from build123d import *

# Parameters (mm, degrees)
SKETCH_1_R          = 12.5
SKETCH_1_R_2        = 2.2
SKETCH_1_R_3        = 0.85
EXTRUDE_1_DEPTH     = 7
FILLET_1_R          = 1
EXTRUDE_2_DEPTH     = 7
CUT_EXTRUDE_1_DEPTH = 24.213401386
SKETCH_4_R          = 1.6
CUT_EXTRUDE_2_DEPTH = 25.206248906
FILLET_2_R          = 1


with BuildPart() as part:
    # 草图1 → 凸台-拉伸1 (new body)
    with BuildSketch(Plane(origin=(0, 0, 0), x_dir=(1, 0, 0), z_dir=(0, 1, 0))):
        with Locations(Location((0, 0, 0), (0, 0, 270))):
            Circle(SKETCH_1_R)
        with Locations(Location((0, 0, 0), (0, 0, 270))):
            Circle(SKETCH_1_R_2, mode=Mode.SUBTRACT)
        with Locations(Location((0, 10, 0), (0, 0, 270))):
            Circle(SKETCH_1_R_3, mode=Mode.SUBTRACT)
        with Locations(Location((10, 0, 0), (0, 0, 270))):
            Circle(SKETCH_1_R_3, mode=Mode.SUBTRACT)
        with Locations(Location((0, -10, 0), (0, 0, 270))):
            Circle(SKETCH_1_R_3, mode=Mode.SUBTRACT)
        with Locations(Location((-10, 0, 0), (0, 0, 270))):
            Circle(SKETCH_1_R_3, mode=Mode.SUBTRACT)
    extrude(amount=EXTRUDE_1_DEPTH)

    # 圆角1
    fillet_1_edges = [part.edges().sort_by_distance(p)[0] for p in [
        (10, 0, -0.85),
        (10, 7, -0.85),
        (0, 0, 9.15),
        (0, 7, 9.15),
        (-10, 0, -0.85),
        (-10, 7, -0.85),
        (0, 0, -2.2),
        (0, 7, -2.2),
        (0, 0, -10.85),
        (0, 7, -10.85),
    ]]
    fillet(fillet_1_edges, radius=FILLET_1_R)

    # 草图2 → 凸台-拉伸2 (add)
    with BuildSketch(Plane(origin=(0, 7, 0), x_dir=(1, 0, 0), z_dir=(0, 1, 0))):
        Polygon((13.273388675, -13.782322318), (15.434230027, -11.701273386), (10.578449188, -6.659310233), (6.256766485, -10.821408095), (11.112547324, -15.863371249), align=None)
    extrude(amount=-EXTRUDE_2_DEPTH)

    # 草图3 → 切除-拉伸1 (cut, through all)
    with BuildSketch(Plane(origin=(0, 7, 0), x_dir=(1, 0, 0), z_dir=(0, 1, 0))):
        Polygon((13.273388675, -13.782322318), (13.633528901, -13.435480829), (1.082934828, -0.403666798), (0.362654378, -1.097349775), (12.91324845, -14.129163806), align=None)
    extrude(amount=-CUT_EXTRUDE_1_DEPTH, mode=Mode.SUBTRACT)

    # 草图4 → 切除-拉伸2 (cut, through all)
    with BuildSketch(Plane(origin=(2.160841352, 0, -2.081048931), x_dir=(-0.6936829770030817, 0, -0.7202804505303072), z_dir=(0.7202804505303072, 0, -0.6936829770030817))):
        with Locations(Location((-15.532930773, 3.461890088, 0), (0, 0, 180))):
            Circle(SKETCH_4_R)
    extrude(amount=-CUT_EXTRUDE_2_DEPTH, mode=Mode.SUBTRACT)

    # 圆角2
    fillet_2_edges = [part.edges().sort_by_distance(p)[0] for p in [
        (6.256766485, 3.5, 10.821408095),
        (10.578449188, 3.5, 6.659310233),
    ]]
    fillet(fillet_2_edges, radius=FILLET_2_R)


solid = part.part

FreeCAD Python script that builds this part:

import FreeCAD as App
import Part
import Sketcher
from FreeCAD import Vector
Q = App.Units.Quantity


def edges_at(feature, points):
    """Names of the edges that pass closest to the given points."""
    edges = feature.Shape.Edges
    near = lambda p: min(range(len(edges)), key=lambda i: edges[i].distToShape(Part.Vertex(*p))[0])
    return sorted({f"Edge{near(p) + 1}" for p in points})

doc = App.newDocument("Part")
params = doc.addObject("Spreadsheet::Sheet", "Params")
for row, (alias, value) in enumerate([
    ("sketch1_diameter", "25 mm"),
    ("sketch1_diameter2", "1.7 mm"),
    ("sketch1_diameter3", "4.4 mm"),
    ("pad1_length", "7 mm"),
    ("fillet_radius", "1 mm"),
    ("sketch2_length", "3 mm"),
    ("sketch2_length2", "7 mm"),
    ("pad2_length", "7 mm"),
    ("sketch3_length", "1 mm"),
    ("sketch3_length2", "0.5 mm"),
    ("sketch3_length3", "0.5 mm"),
    ("sketch4_diameter", "3.2 mm"),
    ("fillet2_radius", "1 mm"),
], start=1):
    params.set(f"A{row}", alias)
    params.set(f"B{row}", "=" + value)
    params.setAlias(f"B{row}", alias)

body = doc.addObject("PartDesign::Body", "Body")

# Sketch on XZ plane
sketch1 = body.newObject("Sketcher::SketchObject", "Sketch")
sketch1.AttachmentSupport = (doc.getObject("XZ_Plane"), [""])
sketch1.MapMode = "FlatFace"
sketch1.addGeometry([
    Part.Circle(Vector(0, 0, 0), Vector(0, 0, 1), 12.5),  # 0
    Part.Circle(Vector(0, -10, 0), Vector(0, 0, 1), 0.8),  # 1
    Part.Circle(Vector(-10, 0, 0), Vector(0, 0, 1), 0.8),  # 2
    Part.Circle(Vector(0, 0, 0), Vector(0, 0, 1), 2.2),  # 3
    Part.Circle(Vector(10, 0, 0), Vector(0, 0, 1), 0.8),  # 4
    Part.Circle(Vector(0, 10, 0), Vector(0, 0, 1), 0.8),  # 5
], False)
sketch1.addConstraint([
    Sketcher.Constraint("Coincident", 0, 3, -1, 1),
    Sketcher.Constraint("Coincident", 3, 3, -1, 1),
    Sketcher.Constraint("Equal", 1, 2),
    Sketcher.Constraint("Equal", 2, 4),
    Sketcher.Constraint("Equal", 4, 5),
    Sketcher.Constraint("Symmetric", 2, 3, 4, 3, -1, 1),
    Sketcher.Constraint("Symmetric", 1, 3, 5, 3, -1, 1),
    Sketcher.Constraint("PointOnObject", 1, 3, -2),
    Sketcher.Constraint("PointOnObject", 2, 3, -1),
    Sketcher.Constraint("Diameter", 0, Q("25 mm")),
    Sketcher.Constraint("Diameter", 1, Q("1.7 mm")),
    Sketcher.Constraint("Diameter", 3, Q("4.4 mm")),
    Sketcher.Constraint("DistanceY", 1, 3, -1, 1, Q("10 mm")),
    Sketcher.Constraint("DistanceX", 2, 3, -1, 1, Q("10 mm")),
])
sketch1.setExpression("Constraints[9]", "Params.sketch1_diameter")
sketch1.setExpression("Constraints[10]", "Params.sketch1_diameter2")
sketch1.setExpression("Constraints[11]", "Params.sketch1_diameter3")
pad1 = body.newObject("PartDesign::Pad", "Pad")
pad1.Profile = sketch1
pad1.setExpression("Length", "Params.pad1_length")
pad1.Reversed = True
doc.recompute()

fillet = body.newObject("PartDesign::Fillet", "Fillet")
fillet.Base = (pad1, edges_at(pad1, [
    (10, 0, -0.85),
    (10, 7, -0.85),
    (0, 0, 9.15),
    (0, 7, 9.15),
    (-10, 0, -0.85),
    (-10, 7, -0.85),
    (0, 0, -2.2),
    (0, 7, -2.2),
    (0, 0, -10.85),
    (0, 7, -10.85),
]))
fillet.setExpression("Radius", "Params.fillet_radius")

# Sketch on XZ plane
sketch2 = body.newObject("Sketcher::SketchObject", "Sketch001")
sketch2.AttachmentSupport = (doc.getObject("XZ_Plane"), [""])
sketch2.MapMode = "FlatFace"
sketch2.AttachmentOffset = App.Placement(Vector(0, 0, -7), App.Rotation())
sketch2.addGeometry([
    Part.LineSegment(Vector(13.3, 13.8, 0), Vector(15.4, 11.7, 0)),  # 0
    Part.LineSegment(Vector(15.4, 11.7, 0), Vector(10.6, 6.7, 0)),  # 1
    Part.LineSegment(Vector(10.6, 6.7, 0), Vector(6.3, 10.8, 0)),  # 2
    Part.LineSegment(Vector(6.3, 10.8, 0), Vector(11.1, 15.9, 0)),  # 3
    Part.LineSegment(Vector(11.1, 15.9, 0), Vector(13.3, 13.8, 0)),  # 4
], False)
sketch2.addConstraint([
    Sketcher.Constraint("Coincident", 0, 2, 1, 1),
    Sketcher.Constraint("Coincident", 1, 2, 2, 1),
    Sketcher.Constraint("Coincident", 2, 2, 3, 1),
    Sketcher.Constraint("Coincident", 3, 2, 4, 1),
    Sketcher.Constraint("Coincident", 4, 2, 0, 1),
    Sketcher.Constraint("Perpendicular", 0, 1),
    Sketcher.Constraint("Perpendicular", 1, 2),
    Sketcher.Constraint("Perpendicular", 2, 3),
    Sketcher.Constraint("Perpendicular", 3, 4),
    Sketcher.Constraint("Equal", 0, 4),
    Sketcher.Constraint("Distance", 0, Q("3 mm")),
    Sketcher.Constraint("Distance", 1, Q("7 mm")),
    Sketcher.Constraint("DistanceX", 1, 2, 3, 2, Q("0.534098 mm")),
    Sketcher.Constraint("DistanceX", -1, 1, 0, 2, Q("15.43423 mm")),
    Sketcher.Constraint("DistanceY", -1, 1, 1, 2, Q("6.65931 mm")),
])
sketch2.setExpression("Constraints[10]", "Params.sketch2_length")
sketch2.setExpression("Constraints[11]", "Params.sketch2_length2")
pad2 = body.newObject("PartDesign::Pad", "Pad001")
pad2.Profile = sketch2
pad2.setExpression("Length", "Params.pad2_length")

# Sketch on XZ plane
sketch3 = body.newObject("Sketcher::SketchObject", "Sketch002")
sketch3.AttachmentSupport = (doc.getObject("XZ_Plane"), [""])
sketch3.MapMode = "FlatFace"
sketch3.AttachmentOffset = App.Placement(Vector(0, 0, -7), App.Rotation())
sketch3.addGeometry([
    Part.LineSegment(Vector(13.273389, 13.782322, 0), Vector(13.633529, 13.435481, 0)),  # 0
    Part.LineSegment(Vector(13.633529, 13.435481, 0), Vector(1.082935, 0.403667, 0)),  # 1
    Part.LineSegment(Vector(1.082935, 0.403667, 0), Vector(0.362654, 1.09735, 0)),  # 2
    Part.LineSegment(Vector(0.362654, 1.09735, 0), Vector(12.913248, 14.129164, 0)),  # 3
    Part.LineSegment(Vector(12.913248, 14.129164, 0), Vector(13.273389, 13.782322, 0)),  # 4
], False)
sketch3.addConstraint([
    Sketcher.Constraint("Coincident", 0, 2, 1, 1),
    Sketcher.Constraint("Coincident", 1, 2, 2, 1),
    Sketcher.Constraint("Coincident", 2, 2, 3, 1),
    Sketcher.Constraint("Coincident", 3, 2, 4, 1),
    Sketcher.Constraint("Coincident", 4, 2, 0, 1),
    Sketcher.Constraint("Distance", 2, Q("1 mm")),
    Sketcher.Constraint("Distance", 0, Q("0.5 mm")),
    Sketcher.Constraint("Distance", 4, Q("0.5 mm")),
    Sketcher.Constraint("DistanceX", -1, 1, 0, 2, Q("13.633529 mm")),
    Sketcher.Constraint("DistanceY", -1, 1, 0, 2, Q("13.435481 mm")),
    Sketcher.Constraint("DistanceY", -1, 1, 2, 2, Q("1.09735 mm")),
    Sketcher.Constraint("DistanceX", -1, 1, 3, 2, Q("12.913248 mm")),
    Sketcher.Constraint("DistanceX", -1, 1, 4, 2, Q("13.273389 mm")),
    Sketcher.Constraint("DistanceX", 2, 2, 1, 2, Q("0.72028 mm")),
    Sketcher.Constraint("Distance", 1, Q("18.092694 mm")),
])
sketch3.setExpression("Constraints[5]", "Params.sketch3_length")
sketch3.setExpression("Constraints[6]", "Params.sketch3_length2")
sketch3.setExpression("Constraints[7]", "Params.sketch3_length3")
pocket1 = body.newObject("PartDesign::Pocket", "Pocket")
pocket1.Profile = sketch3
pocket1.Type = "ThroughAll"
pocket1.Reversed = True

# Sketch on an angled plane
sketch4 = body.newObject("Sketcher::SketchObject", "Sketch003")
sketch4.Placement = App.Placement(Vector(2.160841, 0, -2.081049), App.Rotation(Vector(-0.693682977, 0, -0.720280451), Vector(0, 1.000000001, 0), Vector(0.720280451, 0, -0.693682977), "ZXY"))
sketch4.addGeometry(Part.Circle(Vector(-15.5, 3.5, 0), Vector(0, 0, 1), 1.6), False)
sketch4.addConstraint([
    Sketcher.Constraint("Diameter", 0, Q("3.2 mm")),
    Sketcher.Constraint("DistanceX", 0, 3, -1, 1, Q("15.532931 mm")),
    Sketcher.Constraint("DistanceY", -1, 1, 0, 3, Q("3.46189 mm")),
])
sketch4.setExpression("Constraints[0]", "Params.sketch4_diameter")
pocket2 = body.newObject("PartDesign::Pocket", "Pocket001")
pocket2.Profile = sketch4
pocket2.Type = "ThroughAll"
doc.recompute()

fillet2 = body.newObject("PartDesign::Fillet", "Fillet001")
fillet2.Base = (pocket2, edges_at(pocket2, [(6.257, 3.5, 10.821), (10.578, 3.5, 6.659)]))
fillet2.setExpression("Radius", "Params.fillet2_radius")

doc.recompute()
